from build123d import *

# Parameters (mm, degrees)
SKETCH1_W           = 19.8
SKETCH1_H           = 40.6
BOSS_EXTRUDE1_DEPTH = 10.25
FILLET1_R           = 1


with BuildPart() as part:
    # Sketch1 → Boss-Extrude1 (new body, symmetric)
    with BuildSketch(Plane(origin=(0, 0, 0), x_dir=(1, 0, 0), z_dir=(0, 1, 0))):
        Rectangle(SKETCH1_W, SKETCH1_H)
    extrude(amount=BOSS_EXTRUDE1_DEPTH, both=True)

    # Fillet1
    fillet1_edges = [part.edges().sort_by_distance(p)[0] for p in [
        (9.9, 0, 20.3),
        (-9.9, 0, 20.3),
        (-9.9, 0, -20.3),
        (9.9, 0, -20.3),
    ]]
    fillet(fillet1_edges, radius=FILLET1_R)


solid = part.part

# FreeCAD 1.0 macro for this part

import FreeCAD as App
import Part
import Sketcher


def edges_at(feature, points):
    """Names of the edges that pass closest to the given points."""
    edges = feature.Shape.Edges
    near = lambda p: min(range(len(edges)), key=lambda i: edges[i].distToShape(Part.Vertex(*p))[0])
    return sorted({f"Edge{near(p) + 1}" for p in points})

doc = App.newDocument("Part")
body = doc.addObject("PartDesign::Body", "Body")

# Sketch on XZ plane
sketch1 = body.newObject("Sketcher::SketchObject", "Sketch")
sketch1.AttachmentSupport = (doc.getObject("XZ_Plane"), [""])
sketch1.MapMode = "FlatFace"
sketch1.addGeometry(Part.LineSegment(App.Vector(-10, -20, 0), App.Vector(-10, 20, 0)), False)
sketch1.addGeometry(Part.LineSegment(App.Vector(-10, 20, 0), App.Vector(10, 20, 0)), False)
sketch1.addGeometry(Part.LineSegment(App.Vector(10, 20, 0), App.Vector(10, -20, 0)), False)
sketch1.addGeometry(Part.LineSegment(App.Vector(10, -20, 0), App.Vector(-10, -20, 0)), False)
sketch1.addConstraint(Sketcher.Constraint("Coincident", 0, 2, 1, 1))
sketch1.addConstraint(Sketcher.Constraint("Coincident", 1, 2, 2, 1))
sketch1.addConstraint(Sketcher.Constraint("Coincident", 2, 2, 3, 1))
sketch1.addConstraint(Sketcher.Constraint("Coincident", 3, 2, 0, 1))
sketch1.addConstraint(Sketcher.Constraint("Vertical", 0))
sketch1.addConstraint(Sketcher.Constraint("Horizontal", 1))
sketch1.addConstraint(Sketcher.Constraint("Vertical", 2))
sketch1.addConstraint(Sketcher.Constraint("Horizontal", 3))
sketch1.addConstraint(Sketcher.Constraint("Symmetric", 0, 2, 2, 2, -1, 1))
sketch1.addConstraint(Sketcher.Constraint("DistanceX", 1, 1, 1, 2, 19.8))
sketch1.addConstraint(Sketcher.Constraint("DistanceY", 0, 1, 0, 2, 40.6))
pad1 = body.newObject("PartDesign::Pad", "Pad")
pad1.Profile = sketch1
pad1.Length = 20.5
pad1.Midplane = True
doc.recompute()

fillet = body.newObject("PartDesign::Fillet", "Fillet")
fillet.Base = (pad1, edges_at(pad1, [
    (9.9, 0, 20.3),
    (-9.9, 0, 20.3),
    (-9.9, 0, -20.3),
    (9.9, 0, -20.3),
]))
fillet.Radius = 1

doc.recompute()
